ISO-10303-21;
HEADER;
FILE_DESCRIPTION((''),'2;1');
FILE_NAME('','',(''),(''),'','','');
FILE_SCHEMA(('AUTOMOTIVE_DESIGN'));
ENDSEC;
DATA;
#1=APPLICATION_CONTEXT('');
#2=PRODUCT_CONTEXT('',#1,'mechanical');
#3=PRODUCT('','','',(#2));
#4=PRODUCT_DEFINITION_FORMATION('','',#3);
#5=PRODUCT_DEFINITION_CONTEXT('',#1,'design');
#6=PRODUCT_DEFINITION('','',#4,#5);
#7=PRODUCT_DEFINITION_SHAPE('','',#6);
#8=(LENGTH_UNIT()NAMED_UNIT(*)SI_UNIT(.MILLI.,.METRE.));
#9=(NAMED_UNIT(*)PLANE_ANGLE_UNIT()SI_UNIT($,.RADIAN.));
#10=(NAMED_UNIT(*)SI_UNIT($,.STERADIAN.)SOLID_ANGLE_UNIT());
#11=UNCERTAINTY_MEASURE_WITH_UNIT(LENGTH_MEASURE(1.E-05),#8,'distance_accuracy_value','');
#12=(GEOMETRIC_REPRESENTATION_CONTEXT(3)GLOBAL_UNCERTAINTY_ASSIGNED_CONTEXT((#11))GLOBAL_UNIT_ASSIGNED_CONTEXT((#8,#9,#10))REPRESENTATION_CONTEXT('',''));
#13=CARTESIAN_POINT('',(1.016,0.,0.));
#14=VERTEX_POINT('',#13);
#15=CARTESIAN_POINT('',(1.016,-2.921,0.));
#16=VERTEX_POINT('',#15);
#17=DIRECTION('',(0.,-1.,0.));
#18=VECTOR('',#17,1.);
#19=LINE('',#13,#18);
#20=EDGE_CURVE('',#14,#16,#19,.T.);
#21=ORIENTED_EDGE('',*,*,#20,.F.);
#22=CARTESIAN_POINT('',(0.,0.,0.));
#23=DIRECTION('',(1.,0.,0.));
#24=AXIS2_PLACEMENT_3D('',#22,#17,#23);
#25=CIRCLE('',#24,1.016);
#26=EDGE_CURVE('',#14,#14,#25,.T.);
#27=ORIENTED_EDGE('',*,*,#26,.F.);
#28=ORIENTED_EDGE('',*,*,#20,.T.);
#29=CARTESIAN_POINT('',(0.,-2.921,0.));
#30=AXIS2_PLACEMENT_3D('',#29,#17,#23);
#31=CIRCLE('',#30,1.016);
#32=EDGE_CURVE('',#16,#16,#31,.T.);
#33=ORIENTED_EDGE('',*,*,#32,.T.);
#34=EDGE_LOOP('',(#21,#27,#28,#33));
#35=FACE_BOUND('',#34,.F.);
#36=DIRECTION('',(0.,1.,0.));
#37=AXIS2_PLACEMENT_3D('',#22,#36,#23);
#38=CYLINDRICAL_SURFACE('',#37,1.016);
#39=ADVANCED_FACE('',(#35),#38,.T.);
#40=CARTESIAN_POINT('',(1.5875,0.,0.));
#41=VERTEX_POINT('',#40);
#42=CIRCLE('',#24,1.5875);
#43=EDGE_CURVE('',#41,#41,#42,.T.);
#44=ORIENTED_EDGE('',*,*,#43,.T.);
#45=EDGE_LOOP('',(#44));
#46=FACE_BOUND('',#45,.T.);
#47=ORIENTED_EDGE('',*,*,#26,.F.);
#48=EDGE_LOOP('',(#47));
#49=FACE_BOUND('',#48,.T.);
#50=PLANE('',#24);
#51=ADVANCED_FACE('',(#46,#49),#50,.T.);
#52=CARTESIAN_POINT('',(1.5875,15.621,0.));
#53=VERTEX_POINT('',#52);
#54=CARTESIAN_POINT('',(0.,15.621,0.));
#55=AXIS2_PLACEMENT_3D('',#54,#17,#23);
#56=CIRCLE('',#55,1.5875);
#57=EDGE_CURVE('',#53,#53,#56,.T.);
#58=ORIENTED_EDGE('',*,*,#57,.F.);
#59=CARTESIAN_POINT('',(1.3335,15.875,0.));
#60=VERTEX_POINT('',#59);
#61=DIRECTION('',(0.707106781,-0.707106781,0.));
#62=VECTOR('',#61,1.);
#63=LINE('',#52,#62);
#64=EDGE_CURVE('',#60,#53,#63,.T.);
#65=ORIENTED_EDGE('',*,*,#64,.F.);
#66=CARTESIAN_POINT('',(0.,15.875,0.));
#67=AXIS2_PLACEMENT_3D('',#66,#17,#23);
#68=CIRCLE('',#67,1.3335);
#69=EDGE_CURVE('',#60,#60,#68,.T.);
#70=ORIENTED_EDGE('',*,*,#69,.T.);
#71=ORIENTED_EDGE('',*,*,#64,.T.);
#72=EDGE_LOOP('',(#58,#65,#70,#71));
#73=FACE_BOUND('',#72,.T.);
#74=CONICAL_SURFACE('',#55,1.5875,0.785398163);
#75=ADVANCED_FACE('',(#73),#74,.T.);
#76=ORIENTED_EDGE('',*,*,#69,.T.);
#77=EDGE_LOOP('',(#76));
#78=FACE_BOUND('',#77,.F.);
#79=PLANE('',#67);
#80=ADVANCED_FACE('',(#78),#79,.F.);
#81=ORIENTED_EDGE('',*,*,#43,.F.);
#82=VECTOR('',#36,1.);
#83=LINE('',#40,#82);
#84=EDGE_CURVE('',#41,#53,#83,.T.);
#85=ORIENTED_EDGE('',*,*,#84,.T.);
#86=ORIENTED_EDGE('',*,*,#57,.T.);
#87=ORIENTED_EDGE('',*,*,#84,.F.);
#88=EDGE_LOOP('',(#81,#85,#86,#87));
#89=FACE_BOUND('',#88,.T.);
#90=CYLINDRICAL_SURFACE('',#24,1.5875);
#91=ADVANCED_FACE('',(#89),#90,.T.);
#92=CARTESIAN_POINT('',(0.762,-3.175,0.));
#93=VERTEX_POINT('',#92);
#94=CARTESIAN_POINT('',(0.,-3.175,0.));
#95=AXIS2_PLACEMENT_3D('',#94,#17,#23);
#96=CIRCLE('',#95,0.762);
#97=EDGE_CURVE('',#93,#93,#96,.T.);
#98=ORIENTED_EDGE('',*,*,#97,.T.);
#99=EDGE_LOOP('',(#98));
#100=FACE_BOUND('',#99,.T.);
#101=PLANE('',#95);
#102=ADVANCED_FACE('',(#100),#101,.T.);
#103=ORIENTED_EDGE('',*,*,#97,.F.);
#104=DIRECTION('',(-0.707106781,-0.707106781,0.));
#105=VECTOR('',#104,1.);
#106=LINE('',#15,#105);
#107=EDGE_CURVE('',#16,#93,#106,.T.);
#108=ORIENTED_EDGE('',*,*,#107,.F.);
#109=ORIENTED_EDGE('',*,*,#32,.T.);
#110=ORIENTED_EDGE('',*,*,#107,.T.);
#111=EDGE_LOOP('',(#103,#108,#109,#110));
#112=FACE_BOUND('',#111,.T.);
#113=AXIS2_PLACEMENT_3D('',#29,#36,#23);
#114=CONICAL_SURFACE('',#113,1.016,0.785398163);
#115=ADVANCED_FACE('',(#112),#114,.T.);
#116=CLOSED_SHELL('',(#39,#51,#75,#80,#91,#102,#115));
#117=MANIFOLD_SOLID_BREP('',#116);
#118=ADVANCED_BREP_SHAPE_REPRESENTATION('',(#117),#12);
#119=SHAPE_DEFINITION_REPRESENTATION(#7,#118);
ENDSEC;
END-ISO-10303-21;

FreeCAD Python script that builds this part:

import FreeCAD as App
import Part
import Sketcher

V = App.Vector
Q = App.Units.Quantity


def edges_at(feature, points):
    """Names of the edges that pass closest to the given points."""
    edges = feature.Shape.Edges
    near = lambda p: min(range(len(edges)), key=lambda i: edges[i].distToShape(Part.Vertex(*p))[0])
    return sorted({f"Edge{near(p) + 1}" for p in points})

doc = App.newDocument("Part")
params = doc.addObject("Spreadsheet::Sheet", "Params")
for row, (alias, value) in enumerate([
    ("sketch1_diameter", "0.08 in"),
    ("sketch1_diameter2", "0.125 in"),
    ("pad1_length", "0.625 in"),
    ("sketch2_diameter", "0.08 in"),
    ("pad2_length", "0.125 in"),
    ("pad2_length2", "0.625 in"),
    ("chamfer_size", "0.01 in"),
], start=1):
    params.set(f"A{row}", alias)
    params.set(f"B{row}", "=" + value)
    params.setAlias(f"B{row}", alias)

body = doc.addObject("PartDesign::Body", "Body")

# Sketch on XZ plane
sketch1 = body.newObject("Sketcher::SketchObject", "Sketch")
sketch1.AttachmentSupport = (doc.getObject("XZ_Plane"), [""])
sketch1.MapMode = "FlatFace"
sketch1.addGeometry([
    Part.Circle(V(0, 0, 0), V(0, 0, 1), 1.5875),
    Part.Circle(V(0, 0, 0), V(0, 0, 1), 1.016),
], False)
sketch1.addConstraint([
    Sketcher.Constraint("Coincident", 0, 3, -1, 1),
    Sketcher.Constraint("Coincident", 1, 3, -1, 1),
    Sketcher.Constraint("Diameter", 1, Q("0.08 in")),
    Sketcher.Constraint("Diameter", 0, Q("0.125 in")),
])
sketch1.setExpression("Constraints[2]", "Params.sketch1_diameter")
sketch1.setExpression("Constraints[3]", "Params.sketch1_diameter2")
pad1 = body.newObject("PartDesign::Pad", "Pad")
pad1.Profile = sketch1
pad1.setExpression("Length", "Params.pad1_length")
pad1.Reversed = True

# Sketch on XZ plane
sketch2 = body.newObject("Sketcher::SketchObject", "Sketch001")
sketch2.AttachmentSupport = (doc.getObject("XZ_Plane"), [""])
sketch2.MapMode = "FlatFace"
sketch2.addGeometry(Part.Circle(V(0, 0, 0), V(0, 0, 1), 1.016), False)
sketch2.addConstraint([
    Sketcher.Constraint("Coincident", 0, 3, -1, 1),
    Sketcher.Constraint("Diameter", 0, Q("0.08 in")),
])
sketch2.setExpression("Constraints[1]", "Params.sketch2_diameter")
pad2 = body.newObject("PartDesign::Pad", "Pad001")
pad2.Profile = sketch2
pad2.Type = "TwoLengths"
pad2.setExpression("Length", "Params.pad2_length")
pad2.setExpression("Length2", "Params.pad2_length2")
doc.recompute()

chamfer = body.newObject("PartDesign::Chamfer", "Chamfer")
chamfer.Base = (pad2, edges_at(pad2, [(-1.587, 15.875, 0), (-1.016, -3.175, 0)]))
chamfer.setExpression("Size", "Params.chamfer_size")

doc.recompute()
